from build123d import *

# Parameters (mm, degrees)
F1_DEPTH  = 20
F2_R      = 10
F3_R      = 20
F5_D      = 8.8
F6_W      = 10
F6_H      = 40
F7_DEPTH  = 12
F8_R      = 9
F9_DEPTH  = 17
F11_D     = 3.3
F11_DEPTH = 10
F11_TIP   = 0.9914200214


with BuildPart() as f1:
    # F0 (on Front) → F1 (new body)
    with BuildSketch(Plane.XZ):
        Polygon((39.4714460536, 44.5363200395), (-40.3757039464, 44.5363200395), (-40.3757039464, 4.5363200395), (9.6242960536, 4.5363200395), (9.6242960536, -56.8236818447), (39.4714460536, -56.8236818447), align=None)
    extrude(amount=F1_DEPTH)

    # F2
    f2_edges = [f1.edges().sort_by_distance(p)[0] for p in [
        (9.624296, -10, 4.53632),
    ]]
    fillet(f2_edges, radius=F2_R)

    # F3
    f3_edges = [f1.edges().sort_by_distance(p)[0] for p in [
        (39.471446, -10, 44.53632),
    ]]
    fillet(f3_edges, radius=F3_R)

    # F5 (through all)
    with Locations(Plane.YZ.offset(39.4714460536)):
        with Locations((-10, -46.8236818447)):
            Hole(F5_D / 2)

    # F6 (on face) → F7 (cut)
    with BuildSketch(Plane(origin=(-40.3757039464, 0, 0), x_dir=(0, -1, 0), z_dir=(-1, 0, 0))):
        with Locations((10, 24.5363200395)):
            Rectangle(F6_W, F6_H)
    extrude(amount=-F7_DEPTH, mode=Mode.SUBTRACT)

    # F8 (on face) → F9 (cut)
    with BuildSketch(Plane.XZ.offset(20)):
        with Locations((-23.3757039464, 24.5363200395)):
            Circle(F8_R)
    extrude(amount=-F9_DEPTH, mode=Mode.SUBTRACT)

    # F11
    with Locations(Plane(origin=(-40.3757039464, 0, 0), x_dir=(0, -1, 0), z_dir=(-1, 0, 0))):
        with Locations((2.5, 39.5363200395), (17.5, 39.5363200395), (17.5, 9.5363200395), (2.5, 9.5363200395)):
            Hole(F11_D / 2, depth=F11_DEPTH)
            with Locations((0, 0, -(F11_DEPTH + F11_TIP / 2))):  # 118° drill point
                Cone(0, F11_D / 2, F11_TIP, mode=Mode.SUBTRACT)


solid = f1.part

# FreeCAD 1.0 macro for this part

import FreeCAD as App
import Part
import Sketcher
from FreeCAD import Vector


def edges_at(feature, points):
    """Names of the edges that pass closest to the given points."""
    edges = feature.Shape.Edges
    near = lambda p: min(range(len(edges)), key=lambda i: edges[i].distToShape(Part.Vertex(*p))[0])
    return sorted({f"Edge{near(p) + 1}" for p in points})


def add_polygon(sketch, points):
    """Adds a closed chain of lines whose ends are joined by coincident constraints."""
    first, n = sketch.GeometryCount, len(points)
    for a, b in zip(points, points[1:] + points[:1]):
        sketch.addGeometry(Part.LineSegment(App.Vector(*a, 0), App.Vector(*b, 0)), False)
    for i in range(n):
        sketch.addConstraint(Sketcher.Constraint("Coincident", first + i, 2, first + (i + 1) % n, 1))

doc = App.newDocument("Part")
body = doc.addObject("PartDesign::Body", "Body")

# Sketch on XZ plane
sketch1 = body.newObject("Sketcher::SketchObject", "Sketch")
sketch1.AttachmentSupport = (doc.getObject("XZ_Plane"), [""])
sketch1.MapMode = "FlatFace"
add_polygon(sketch1, [(39, 45), (-40, 45), (-40, 5), (10, 5), (10, -57), (39, -57)])  # lines 0-5
sketch1.addConstraint(Sketcher.Constraint("Horizontal", 0))
sketch1.addConstraint(Sketcher.Constraint("Vertical", 1))
sketch1.addConstraint(Sketcher.Constraint("Horizontal", 2))
sketch1.addConstraint(Sketcher.Constraint("Vertical", 3))
sketch1.addConstraint(Sketcher.Constraint("Horizontal", 4))
sketch1.addConstraint(Sketcher.Constraint("Vertical", 5))
sketch1.addConstraint(Sketcher.Constraint("DistanceX", 2, 1, 2, 2, 50.0))
sketch1.addConstraint(Sketcher.Constraint("DistanceY", 1, 2, 1, 1, 40.0))
sketch1.addConstraint(Sketcher.Constraint("DistanceY", 3, 2, 3, 1, 61.360002))
sketch1.addConstraint(Sketcher.Constraint("DistanceX", 0, 2, 0, 1, 79.84715))
sketch1.addConstraint(Sketcher.Constraint("DistanceY", -1, 1, 0, 2, 44.53632))
sketch1.addConstraint(Sketcher.Constraint("DistanceX", 0, 2, -1, 1, 40.375704))
pad1 = body.newObject("PartDesign::Pad", "Pad")
pad1.Profile = sketch1
pad1.Length = 20
doc.recompute()

fillet = body.newObject("PartDesign::Fillet", "Fillet")
fillet.Base = (pad1, edges_at(pad1, [(9.624, -10, 4.536)]))
fillet.Radius = 10
doc.recompute()

fillet2 = body.newObject("PartDesign::Fillet", "Fillet001")
fillet2.Base = (fillet, edges_at(fillet, [(39.471, -10, 44.536)]))
fillet2.Radius = 20

# Sketch on YZ plane
sketch2 = body.newObject("Sketcher::SketchObject", "Sketch001")
sketch2.AttachmentSupport = (doc.getObject("YZ_Plane"), [""])
sketch2.MapMode = "FlatFace"
sketch2.AttachmentOffset = App.Placement(Vector(0, 0, 39.471446), App.Rotation())
sketch2.addGeometry(Part.Circle(Vector(-10, -46.8, 0), Vector(0, 0, 1), 4.4), False)
sketch2.addConstraint(Sketcher.Constraint("Diameter", 0, 8.8))
sketch2.addConstraint(Sketcher.Constraint("DistanceX", 0, 3, -1, 1, 10.0))
sketch2.addConstraint(Sketcher.Constraint("DistanceY", 0, 3, -1, 1, 46.823682))
doc.recompute()
hole = body.newObject("PartDesign::Hole", "Hole")
hole.Profile = sketch2
hole.ThreadType = "None"
hole.Diameter = 8.8
hole.DepthType = "ThroughAll"

# Sketch on YZ plane
sketch3 = body.newObject("Sketcher::SketchObject", "Sketch002")
sketch3.AttachmentSupport = (doc.getObject("YZ_Plane"), [""])
sketch3.MapMode = "FlatFace"
sketch3.AttachmentOffset = App.Placement(Vector(0, 0, -40.375704), App.Rotation())
add_polygon(sketch3, [(-5, 45), (-5, 5), (-15, 5), (-15, 45)])  # lines 0-3
sketch3.addConstraint(Sketcher.Constraint("Vertical", 0))
sketch3.addConstraint(Sketcher.Constraint("Horizontal", 1))
sketch3.addConstraint(Sketcher.Constraint("Vertical", 2))
sketch3.addConstraint(Sketcher.Constraint("Horizontal", 3))
sketch3.addConstraint(Sketcher.Constraint("DistanceX", 1, 2, 1, 1, 10.0))
sketch3.addConstraint(Sketcher.Constraint("DistanceY", 0, 2, 0, 1, 40.0))
sketch3.addConstraint(Sketcher.Constraint("DistanceX", 0, 2, -1, 1, 5.0))
sketch3.addConstraint(Sketcher.Constraint("DistanceY", -1, 1, 0, 2, 4.53632))
pocket1 = body.newObject("PartDesign::Pocket", "Pocket")
pocket1.Profile = sketch3
pocket1.Length = 12
pocket1.Reversed = True

# Sketch on XZ plane
sketch4 = body.newObject("Sketcher::SketchObject", "Sketch003")
sketch4.AttachmentSupport = (doc.getObject("XZ_Plane"), [""])
sketch4.MapMode = "FlatFace"
sketch4.AttachmentOffset = App.Placement(Vector(0, 0, 20), App.Rotation())
sketch4.addGeometry(Part.Circle(Vector(-23, 25, 0), Vector(0, 0, 1), 9), False)
sketch4.addConstraint(Sketcher.Constraint("Diameter", 0, 18.0))
sketch4.addConstraint(Sketcher.Constraint("DistanceY", -1, 1, 0, 3, 24.53632))
sketch4.addConstraint(Sketcher.Constraint("DistanceX", 0, 3, -1, 1, 23.375704))
pocket2 = body.newObject("PartDesign::Pocket", "Pocket001")
pocket2.Profile = sketch4
pocket2.Length = 17

# Sketch on YZ plane
sketch5 = body.newObject("Sketcher::SketchObject", "Sketch004")
sketch5.AttachmentSupport = (doc.getObject("YZ_Plane"), [""])
sketch5.MapMode = "FlatFace"
sketch5.AttachmentOffset = App.Placement(Vector(0, 0, -40.375704), App.Rotation())
sketch5.addGeometry(Part.Circle(Vector(-2.5, 39.5, 0), Vector(0, 0, 1), 1.6), False)
sketch5.addGeometry(Part.Circle(Vector(-17.5, 39.5, 0), Vector(0, 0, 1), 1.6), False)
sketch5.addGeometry(Part.Circle(Vector(-17.5, 9.5, 0), Vector(0, 0, 1), 1.6), False)
sketch5.addGeometry(Part.Circle(Vector(-2.5, 9.5, 0), Vector(0, 0, 1), 1.6), False)
sketch5.addConstraint(Sketcher.Constraint("Equal", 0, 1))
sketch5.addConstraint(Sketcher.Constraint("Equal", 1, 2))
sketch5.addConstraint(Sketcher.Constraint("Equal", 2, 3))
sketch5.addConstraint(Sketcher.Constraint("Horizontal", 0, 3, 1, 3))
sketch5.addConstraint(Sketcher.Constraint("Horizontal", 2, 3, 3, 3))
sketch5.addConstraint(Sketcher.Constraint("Vertical", 1, 3, 2, 3))
sketch5.addConstraint(Sketcher.Constraint("Vertical", 0, 3, 3, 3))
sketch5.addConstraint(Sketcher.Constraint("Diameter", 0, 3.3))
sketch5.addConstraint(Sketcher.Constraint("DistanceX", 1, 3, 0, 3, 15.0))
sketch5.addConstraint(Sketcher.Constraint("DistanceY", 2, 3, 1, 3, 30.0))
sketch5.addConstraint(Sketcher.Constraint("DistanceX", 0, 3, -1, 1, 2.5))
sketch5.addConstraint(Sketcher.Constraint("DistanceY", -1, 1, 0, 3, 39.53632))
doc.recompute()
hole2 = body.newObject("PartDesign::Hole", "Hole001")
hole2.Profile = sketch5
hole2.ThreadType = "None"
hole2.Diameter = 3.3
hole2.DepthType = "Dimension"
hole2.Depth = 10
hole2.DrillPoint = "Angled"
hole2.DrillPointAngle = 118
hole2.Reversed = True

doc.recompute()
